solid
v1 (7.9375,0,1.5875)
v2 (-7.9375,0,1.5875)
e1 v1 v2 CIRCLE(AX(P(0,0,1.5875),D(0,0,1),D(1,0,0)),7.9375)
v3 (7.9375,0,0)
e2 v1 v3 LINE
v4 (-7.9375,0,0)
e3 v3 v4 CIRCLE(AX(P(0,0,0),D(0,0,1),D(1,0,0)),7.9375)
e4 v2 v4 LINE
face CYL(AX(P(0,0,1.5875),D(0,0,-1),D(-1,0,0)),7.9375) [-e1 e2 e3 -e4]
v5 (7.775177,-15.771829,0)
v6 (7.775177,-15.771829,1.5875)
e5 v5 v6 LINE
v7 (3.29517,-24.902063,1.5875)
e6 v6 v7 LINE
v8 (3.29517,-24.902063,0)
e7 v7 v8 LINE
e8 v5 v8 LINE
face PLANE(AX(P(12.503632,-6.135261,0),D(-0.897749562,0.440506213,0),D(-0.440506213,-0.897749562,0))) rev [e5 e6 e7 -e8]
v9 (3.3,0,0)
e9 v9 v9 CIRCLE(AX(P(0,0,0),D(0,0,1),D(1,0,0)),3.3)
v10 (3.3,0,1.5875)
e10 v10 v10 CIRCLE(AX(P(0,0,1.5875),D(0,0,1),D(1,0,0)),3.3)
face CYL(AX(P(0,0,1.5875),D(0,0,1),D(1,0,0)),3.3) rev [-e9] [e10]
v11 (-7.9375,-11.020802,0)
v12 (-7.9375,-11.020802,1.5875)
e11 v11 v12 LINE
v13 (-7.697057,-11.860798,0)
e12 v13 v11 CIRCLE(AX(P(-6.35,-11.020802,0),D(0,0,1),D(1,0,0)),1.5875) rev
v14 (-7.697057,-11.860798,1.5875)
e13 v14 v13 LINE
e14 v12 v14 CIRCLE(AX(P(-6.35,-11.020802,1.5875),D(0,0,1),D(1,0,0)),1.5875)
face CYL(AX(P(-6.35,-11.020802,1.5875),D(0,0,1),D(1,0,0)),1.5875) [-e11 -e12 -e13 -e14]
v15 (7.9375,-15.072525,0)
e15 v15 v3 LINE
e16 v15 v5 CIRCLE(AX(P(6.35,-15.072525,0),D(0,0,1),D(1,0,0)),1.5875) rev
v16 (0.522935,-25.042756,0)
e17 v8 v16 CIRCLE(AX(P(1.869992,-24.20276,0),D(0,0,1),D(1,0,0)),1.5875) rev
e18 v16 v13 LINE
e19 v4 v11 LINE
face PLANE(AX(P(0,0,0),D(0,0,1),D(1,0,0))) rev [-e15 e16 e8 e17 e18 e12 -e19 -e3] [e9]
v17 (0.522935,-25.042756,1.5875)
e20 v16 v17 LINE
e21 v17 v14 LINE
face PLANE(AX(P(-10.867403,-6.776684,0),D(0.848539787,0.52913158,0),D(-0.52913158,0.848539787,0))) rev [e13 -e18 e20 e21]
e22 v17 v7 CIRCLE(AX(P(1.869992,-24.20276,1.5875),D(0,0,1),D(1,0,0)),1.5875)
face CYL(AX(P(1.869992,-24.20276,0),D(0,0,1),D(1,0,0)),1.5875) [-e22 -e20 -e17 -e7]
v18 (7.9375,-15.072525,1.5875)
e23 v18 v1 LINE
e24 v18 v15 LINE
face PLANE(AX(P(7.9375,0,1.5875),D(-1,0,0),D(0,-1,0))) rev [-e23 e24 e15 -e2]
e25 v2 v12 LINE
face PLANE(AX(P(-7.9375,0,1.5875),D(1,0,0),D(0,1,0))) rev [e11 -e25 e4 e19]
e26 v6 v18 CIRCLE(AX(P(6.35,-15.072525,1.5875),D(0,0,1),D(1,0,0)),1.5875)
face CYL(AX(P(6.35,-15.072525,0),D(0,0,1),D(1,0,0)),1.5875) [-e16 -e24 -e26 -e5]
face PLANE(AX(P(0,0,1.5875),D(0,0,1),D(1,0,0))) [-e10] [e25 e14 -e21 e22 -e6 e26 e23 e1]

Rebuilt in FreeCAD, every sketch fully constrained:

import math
import FreeCAD as App
import Part
import Sketcher
Q = App.Units.Quantity


def edges_at(feature, points):
    """Names of the edges that pass closest to the given points."""
    edges = feature.Shape.Edges
    near = lambda p: min(range(len(edges)), key=lambda i: edges[i].distToShape(Part.Vertex(*p))[0])
    return sorted({f"Edge{near(p) + 1}" for p in points})


def add_polygon(sketch, points):
    """Adds a closed chain of lines whose ends are joined by coincident constraints."""
    first, n = sketch.GeometryCount, len(points)
    for a, b in zip(points, points[1:] + points[:1]):
        sketch.addGeometry(Part.LineSegment(App.Vector(*a, 0), App.Vector(*b, 0)), False)
    for i in range(n):
        sketch.addConstraint(Sketcher.Constraint("Coincident", first + i, 2, first + (i + 1) % n, 1))

doc = App.newDocument("Part")
body = doc.addObject("PartDesign::Body", "Body")

# Sketch on XY plane
sketch1 = body.newObject("Sketcher::SketchObject", "Sketch")
sketch1.AttachmentSupport = (doc.getObject("XY_Plane"), [""])
sketch1.MapMode = "FlatFace"
sketch1.addGeometry([
    Part.ArcOfCircle(Part.Circle(App.Vector(0, 0, 0), App.Vector(0, 0, 1), 7.9375), math.radians(0), math.radians(180)),
    Part.LineSegment(App.Vector(-7.9375, 0, 0), App.Vector(-7.9375, -28.575, 0)),
    Part.LineSegment(App.Vector(-7.9375, -28.575, 0), App.Vector(7.9375, -28.575, 0)),
    Part.LineSegment(App.Vector(7.9375, -28.575, 0), App.Vector(7.9375, 0, 0)),
], False)
sketch1.addConstraint([
    Sketcher.Constraint("Tangent", 0, 2, 1, 1),
    Sketcher.Constraint("Coincident", 1, 2, 2, 1),
    Sketcher.Constraint("Coincident", 2, 2, 3, 1),
    Sketcher.Constraint("Tangent", 3, 2, 0, 1),
    Sketcher.Constraint("Vertical", 1),
    Sketcher.Constraint("Horizontal", 2),
    Sketcher.Constraint("Vertical", 3),
    Sketcher.Constraint("Coincident", 0, 3, -1, 1),
    Sketcher.Constraint("Radius", 0, Q("0.3125 in")),
    Sketcher.Constraint("DistanceY", 1, 2, 1, 1, Q("1.125 in")),
])
pad1 = body.newObject("PartDesign::Pad", "Pad")
pad1.Profile = sketch1
pad1.Length = Q("0.0625 in")

# Sketch on XY plane
sketch2 = body.newObject("Sketcher::SketchObject", "Sketch001")
sketch2.AttachmentSupport = (doc.getObject("XY_Plane"), [""])
sketch2.MapMode = "FlatFace"
sketch2.AttachmentOffset = App.Placement(App.Vector(0, 0, 0.0625 * 25.4), App.Rotation())
sketch2.addGeometry(Part.Circle(App.Vector(0, 0, 0), App.Vector(0, 0, 1), 3.3), False)
sketch2.addConstraint([
    Sketcher.Constraint("Coincident", 0, 3, -1, 1),
    Sketcher.Constraint("Diameter", 0, 6.6),
])
doc.recompute()
hole = body.newObject("PartDesign::Hole", "Hole")
hole.Profile = sketch2
hole.ThreadType = "None"
hole.Diameter = 6.6
hole.DepthType = "ThroughAll"

# Sketch on XY plane
sketch3 = body.newObject("Sketcher::SketchObject", "Sketch002")
sketch3.AttachmentSupport = (doc.getObject("XY_Plane"), [""])
sketch3.MapMode = "FlatFace"
sketch3.AttachmentOffset = App.Placement(App.Vector(0, 0, 0.0625 * 25.4), App.Rotation())
add_polygon(sketch3, [(7.9375, -28.575), (7.9375, -15.441016), (2.035744, -27.468766), (-7.9375, -11.475212), (-7.9375, -28.575)])  # lines 0-4
sketch3.addConstraint([
    Sketcher.Constraint("Vertical", 0),
    Sketcher.Constraint("Vertical", 3),
    Sketcher.Constraint("Horizontal", 4),
    Sketcher.Constraint("DistanceX", 4, 1, 4, 2, Q("0.625 in")),
    Sketcher.Constraint("DistanceX", -1, 1, 0, 2, Q("0.3125 in")),
    Sketcher.Constraint("DistanceY", 3, 2, -1, 1, Q("1.125 in")),
    Sketcher.Constraint("DistanceY", 0, 1, 0, 2, 13.133984),
    Sketcher.Constraint("DistanceY", 3, 2, 3, 1, 17.099788),
    Sketcher.Constraint("DistanceY", 1, 2, 0, 2, 12.02775),
    Sketcher.Constraint("Distance", 1, 13.397668),
])
pocket1 = body.newObject("PartDesign::Pocket", "Pocket")
pocket1.Profile = sketch3
pocket1.Type = "ThroughAll"
doc.recompute()

fillet = body.newObject("PartDesign::Fillet", "Fillet")
fillet.Base = (pocket1, edges_at(pocket1, [(-7.938, -11.475, 0.794), (2.036, -27.469, 0.794), (7.938, -15.441, 0.794)]))
fillet.Radius = Q("0.0625 in")

doc.recompute()
